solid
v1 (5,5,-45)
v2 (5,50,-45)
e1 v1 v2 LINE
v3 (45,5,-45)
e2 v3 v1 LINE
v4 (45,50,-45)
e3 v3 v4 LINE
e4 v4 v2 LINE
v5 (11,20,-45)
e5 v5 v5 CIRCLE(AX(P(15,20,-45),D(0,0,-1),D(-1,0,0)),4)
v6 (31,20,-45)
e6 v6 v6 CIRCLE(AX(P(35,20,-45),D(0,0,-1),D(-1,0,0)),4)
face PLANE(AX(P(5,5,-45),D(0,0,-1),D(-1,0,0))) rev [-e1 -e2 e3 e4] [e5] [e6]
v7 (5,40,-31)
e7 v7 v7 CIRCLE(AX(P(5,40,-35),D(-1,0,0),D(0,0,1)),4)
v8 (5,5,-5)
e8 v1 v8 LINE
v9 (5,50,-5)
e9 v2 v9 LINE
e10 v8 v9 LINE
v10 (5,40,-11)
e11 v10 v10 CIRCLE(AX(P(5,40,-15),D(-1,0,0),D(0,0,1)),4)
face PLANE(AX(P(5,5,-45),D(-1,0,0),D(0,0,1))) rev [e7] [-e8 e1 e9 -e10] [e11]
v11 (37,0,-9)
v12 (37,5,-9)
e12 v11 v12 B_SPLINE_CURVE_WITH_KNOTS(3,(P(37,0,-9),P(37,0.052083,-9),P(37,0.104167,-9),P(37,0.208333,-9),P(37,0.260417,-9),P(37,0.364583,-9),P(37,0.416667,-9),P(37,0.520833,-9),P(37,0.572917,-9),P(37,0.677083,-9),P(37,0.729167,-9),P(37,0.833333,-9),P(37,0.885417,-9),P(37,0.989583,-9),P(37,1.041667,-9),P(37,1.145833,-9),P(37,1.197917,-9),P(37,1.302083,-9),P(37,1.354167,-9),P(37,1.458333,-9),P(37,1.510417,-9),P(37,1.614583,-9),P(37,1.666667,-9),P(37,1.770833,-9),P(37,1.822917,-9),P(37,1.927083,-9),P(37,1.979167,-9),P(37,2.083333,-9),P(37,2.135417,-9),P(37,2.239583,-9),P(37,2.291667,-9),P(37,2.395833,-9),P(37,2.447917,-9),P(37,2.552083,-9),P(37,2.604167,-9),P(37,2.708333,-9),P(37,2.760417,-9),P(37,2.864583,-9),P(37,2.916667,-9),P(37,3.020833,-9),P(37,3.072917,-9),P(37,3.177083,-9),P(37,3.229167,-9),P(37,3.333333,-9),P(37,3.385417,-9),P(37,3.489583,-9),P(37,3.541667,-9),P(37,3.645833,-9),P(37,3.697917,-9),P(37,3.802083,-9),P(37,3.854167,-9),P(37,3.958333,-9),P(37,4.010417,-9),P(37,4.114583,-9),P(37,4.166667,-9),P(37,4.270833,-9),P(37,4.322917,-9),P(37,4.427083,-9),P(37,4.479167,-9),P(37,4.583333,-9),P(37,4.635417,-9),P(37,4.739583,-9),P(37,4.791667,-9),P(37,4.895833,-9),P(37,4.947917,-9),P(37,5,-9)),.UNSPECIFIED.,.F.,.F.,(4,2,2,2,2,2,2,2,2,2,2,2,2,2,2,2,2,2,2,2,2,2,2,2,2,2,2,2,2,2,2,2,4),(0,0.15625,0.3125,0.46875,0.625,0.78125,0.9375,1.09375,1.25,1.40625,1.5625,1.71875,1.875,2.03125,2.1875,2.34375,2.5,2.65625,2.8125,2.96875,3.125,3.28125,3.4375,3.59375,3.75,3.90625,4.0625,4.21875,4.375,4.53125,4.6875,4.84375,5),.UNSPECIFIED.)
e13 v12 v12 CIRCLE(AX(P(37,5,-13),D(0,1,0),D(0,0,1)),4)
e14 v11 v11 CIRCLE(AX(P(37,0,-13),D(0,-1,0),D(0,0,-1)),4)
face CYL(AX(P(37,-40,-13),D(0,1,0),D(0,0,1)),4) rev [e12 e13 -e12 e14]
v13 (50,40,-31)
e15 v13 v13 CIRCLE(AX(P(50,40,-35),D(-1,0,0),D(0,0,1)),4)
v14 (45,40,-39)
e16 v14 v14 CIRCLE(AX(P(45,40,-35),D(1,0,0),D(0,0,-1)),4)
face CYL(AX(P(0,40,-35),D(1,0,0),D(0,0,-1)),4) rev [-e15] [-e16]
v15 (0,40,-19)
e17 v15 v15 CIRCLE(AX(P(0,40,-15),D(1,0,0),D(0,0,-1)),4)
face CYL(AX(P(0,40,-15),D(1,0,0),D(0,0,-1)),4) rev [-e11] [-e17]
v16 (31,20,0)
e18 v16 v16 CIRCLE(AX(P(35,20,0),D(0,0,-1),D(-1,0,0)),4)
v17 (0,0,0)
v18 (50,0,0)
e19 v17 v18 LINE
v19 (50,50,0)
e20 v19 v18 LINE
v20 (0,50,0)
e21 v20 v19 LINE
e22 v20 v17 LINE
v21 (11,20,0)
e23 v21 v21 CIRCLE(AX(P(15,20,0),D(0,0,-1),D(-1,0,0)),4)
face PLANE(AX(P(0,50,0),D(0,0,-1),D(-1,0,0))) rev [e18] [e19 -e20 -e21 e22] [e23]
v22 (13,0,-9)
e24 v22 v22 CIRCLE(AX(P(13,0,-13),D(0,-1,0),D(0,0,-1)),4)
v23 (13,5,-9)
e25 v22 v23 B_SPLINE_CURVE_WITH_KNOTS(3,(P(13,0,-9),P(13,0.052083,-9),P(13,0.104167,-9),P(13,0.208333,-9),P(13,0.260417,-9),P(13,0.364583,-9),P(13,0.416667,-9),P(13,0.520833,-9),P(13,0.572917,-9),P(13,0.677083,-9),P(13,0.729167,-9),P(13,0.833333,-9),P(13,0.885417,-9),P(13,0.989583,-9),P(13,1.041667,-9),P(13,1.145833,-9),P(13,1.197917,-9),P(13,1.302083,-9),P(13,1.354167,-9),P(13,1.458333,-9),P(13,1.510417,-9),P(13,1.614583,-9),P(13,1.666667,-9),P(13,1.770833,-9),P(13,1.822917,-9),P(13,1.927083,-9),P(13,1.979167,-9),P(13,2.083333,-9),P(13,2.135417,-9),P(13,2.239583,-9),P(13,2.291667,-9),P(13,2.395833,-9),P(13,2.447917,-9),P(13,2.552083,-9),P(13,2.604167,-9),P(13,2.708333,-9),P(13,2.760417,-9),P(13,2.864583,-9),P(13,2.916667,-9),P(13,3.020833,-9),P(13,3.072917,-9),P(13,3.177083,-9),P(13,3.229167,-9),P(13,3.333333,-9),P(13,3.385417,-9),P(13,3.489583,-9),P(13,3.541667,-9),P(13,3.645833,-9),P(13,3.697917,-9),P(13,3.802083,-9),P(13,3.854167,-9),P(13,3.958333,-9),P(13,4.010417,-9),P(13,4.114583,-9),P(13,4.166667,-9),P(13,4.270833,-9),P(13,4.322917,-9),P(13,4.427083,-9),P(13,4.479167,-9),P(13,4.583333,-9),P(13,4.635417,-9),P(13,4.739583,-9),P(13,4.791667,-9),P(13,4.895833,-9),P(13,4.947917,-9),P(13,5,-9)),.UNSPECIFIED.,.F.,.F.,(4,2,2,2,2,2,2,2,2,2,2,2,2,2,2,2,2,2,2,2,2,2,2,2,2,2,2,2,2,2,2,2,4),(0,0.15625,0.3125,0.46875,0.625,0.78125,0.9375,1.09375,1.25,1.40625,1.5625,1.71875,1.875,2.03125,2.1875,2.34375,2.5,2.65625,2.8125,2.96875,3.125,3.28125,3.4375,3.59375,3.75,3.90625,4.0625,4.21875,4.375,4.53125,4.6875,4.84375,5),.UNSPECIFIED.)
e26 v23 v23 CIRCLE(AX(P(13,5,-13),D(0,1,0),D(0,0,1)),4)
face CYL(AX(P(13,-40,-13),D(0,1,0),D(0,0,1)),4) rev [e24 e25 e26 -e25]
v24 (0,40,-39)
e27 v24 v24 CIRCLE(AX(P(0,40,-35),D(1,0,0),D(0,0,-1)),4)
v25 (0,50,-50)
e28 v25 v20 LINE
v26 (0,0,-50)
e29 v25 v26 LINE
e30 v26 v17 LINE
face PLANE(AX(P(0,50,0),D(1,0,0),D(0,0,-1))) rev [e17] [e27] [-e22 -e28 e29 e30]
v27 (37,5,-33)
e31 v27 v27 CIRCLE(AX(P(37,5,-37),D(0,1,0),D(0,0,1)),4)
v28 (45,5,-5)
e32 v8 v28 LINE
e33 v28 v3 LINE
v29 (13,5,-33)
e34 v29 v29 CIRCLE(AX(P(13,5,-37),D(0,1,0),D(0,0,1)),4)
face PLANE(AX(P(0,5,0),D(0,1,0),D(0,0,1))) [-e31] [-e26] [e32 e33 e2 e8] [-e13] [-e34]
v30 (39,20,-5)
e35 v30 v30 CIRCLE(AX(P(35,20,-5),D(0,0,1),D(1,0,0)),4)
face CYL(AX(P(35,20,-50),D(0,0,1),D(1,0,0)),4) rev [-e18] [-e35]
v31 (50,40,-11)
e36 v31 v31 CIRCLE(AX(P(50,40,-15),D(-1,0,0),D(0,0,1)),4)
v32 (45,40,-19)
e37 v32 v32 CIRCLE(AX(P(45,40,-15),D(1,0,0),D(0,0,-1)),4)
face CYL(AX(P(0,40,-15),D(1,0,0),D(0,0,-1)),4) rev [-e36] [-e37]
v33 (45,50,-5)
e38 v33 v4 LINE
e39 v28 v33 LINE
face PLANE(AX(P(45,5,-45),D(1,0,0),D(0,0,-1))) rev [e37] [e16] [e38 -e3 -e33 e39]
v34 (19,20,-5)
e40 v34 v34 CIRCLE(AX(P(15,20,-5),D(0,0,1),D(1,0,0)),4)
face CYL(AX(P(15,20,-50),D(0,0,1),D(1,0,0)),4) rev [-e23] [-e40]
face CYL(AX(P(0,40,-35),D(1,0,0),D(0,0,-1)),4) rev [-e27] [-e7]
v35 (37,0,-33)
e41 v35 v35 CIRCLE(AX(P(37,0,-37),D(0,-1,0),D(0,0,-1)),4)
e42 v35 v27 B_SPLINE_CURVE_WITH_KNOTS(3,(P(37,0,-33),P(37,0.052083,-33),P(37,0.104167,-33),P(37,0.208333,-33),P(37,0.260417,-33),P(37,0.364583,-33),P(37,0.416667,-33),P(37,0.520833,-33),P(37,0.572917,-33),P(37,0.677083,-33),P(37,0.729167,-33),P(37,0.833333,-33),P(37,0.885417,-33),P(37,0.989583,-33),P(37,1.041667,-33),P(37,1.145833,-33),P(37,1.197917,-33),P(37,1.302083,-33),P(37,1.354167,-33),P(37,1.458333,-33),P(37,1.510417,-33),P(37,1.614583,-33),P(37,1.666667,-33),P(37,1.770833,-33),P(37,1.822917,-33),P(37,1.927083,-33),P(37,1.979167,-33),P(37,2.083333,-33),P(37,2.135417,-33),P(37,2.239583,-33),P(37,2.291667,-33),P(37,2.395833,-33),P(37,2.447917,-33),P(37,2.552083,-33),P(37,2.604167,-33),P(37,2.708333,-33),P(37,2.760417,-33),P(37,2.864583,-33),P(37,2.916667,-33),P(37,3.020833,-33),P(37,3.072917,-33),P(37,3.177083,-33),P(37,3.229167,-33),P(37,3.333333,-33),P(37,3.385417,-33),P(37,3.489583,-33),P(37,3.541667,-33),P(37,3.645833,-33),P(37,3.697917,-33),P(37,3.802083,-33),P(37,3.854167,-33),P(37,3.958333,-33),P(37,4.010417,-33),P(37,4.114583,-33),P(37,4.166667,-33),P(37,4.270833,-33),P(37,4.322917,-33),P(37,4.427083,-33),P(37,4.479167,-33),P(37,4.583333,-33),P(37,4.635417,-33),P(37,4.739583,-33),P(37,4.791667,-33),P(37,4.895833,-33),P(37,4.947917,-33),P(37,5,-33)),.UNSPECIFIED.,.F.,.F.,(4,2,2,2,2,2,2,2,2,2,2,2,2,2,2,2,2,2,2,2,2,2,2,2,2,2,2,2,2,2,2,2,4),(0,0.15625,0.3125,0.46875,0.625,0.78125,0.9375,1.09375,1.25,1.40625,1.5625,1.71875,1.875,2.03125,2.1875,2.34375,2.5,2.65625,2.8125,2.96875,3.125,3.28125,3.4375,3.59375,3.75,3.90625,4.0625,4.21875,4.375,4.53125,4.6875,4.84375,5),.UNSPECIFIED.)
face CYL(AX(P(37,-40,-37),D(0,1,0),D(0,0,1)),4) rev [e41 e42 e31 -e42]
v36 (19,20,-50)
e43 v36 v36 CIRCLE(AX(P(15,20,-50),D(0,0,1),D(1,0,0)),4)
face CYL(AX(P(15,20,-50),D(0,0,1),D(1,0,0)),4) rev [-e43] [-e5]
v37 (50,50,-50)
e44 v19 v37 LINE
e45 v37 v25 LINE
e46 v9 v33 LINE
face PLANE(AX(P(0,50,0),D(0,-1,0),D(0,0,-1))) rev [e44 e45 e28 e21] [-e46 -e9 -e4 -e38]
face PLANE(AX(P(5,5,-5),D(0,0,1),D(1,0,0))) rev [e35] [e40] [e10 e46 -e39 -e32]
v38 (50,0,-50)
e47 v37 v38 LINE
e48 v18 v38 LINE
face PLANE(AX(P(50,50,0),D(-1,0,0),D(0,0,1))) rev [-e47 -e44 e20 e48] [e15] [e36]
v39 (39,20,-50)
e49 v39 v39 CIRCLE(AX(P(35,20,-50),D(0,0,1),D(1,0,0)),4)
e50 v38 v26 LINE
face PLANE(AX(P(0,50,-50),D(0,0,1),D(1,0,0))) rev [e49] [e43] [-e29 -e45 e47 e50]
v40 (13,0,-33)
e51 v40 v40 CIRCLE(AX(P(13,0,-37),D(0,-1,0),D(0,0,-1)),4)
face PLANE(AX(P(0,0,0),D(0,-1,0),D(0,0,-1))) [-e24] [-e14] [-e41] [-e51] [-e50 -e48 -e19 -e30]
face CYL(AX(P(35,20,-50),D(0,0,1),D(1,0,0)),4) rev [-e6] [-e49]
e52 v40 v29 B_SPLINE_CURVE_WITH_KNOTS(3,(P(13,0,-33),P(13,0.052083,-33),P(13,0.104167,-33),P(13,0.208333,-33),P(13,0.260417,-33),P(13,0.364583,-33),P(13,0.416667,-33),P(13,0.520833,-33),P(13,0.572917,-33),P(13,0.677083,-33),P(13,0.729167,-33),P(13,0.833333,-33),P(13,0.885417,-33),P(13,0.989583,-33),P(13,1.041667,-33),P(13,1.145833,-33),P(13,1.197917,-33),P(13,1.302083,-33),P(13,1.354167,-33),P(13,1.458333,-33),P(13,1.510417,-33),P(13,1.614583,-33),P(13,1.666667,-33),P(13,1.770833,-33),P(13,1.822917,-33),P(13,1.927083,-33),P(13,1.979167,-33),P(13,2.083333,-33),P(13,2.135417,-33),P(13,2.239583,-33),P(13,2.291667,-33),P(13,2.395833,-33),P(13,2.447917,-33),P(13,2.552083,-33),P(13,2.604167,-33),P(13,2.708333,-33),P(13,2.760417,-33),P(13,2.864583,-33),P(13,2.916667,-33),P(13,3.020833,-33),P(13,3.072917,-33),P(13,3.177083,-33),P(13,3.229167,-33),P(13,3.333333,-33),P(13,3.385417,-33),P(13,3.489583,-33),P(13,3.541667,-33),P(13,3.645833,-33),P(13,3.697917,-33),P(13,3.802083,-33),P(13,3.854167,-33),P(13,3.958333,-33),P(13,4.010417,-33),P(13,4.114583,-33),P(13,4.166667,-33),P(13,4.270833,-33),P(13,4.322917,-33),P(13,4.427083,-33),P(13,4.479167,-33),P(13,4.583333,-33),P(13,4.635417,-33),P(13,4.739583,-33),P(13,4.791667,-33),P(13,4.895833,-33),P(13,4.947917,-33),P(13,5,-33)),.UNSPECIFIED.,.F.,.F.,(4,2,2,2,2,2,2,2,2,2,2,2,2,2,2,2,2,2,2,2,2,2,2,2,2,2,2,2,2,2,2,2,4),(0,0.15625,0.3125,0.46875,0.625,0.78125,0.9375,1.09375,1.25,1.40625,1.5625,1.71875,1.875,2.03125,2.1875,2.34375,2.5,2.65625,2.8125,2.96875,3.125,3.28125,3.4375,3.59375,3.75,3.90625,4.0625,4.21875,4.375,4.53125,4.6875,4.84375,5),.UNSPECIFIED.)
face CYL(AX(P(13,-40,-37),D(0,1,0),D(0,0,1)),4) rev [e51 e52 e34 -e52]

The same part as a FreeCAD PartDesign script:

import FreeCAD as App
import Part
import Sketcher
from FreeCAD import Vector
Q = App.Units.Quantity

doc = App.newDocument("Part")
body = doc.addObject("PartDesign::Body", "Body")

# Sketch on XZ plane
sketch1 = doc.addObject("Sketcher::SketchObject", "Sketch")
body.addObject(sketch1)
sketch1.AttachmentSupport = (doc.XZ_Plane, [""])
sketch1.MapMode = "FlatFace"
sketch1.addGeometry([
    Part.LineSegment(Vector(0, -50, 0), Vector(0, 0, 0)),
    Part.LineSegment(Vector(0, 0, 0), Vector(50, 0, 0)),
    Part.LineSegment(Vector(50, 0, 0), Vector(50, -50, 0)),
    Part.LineSegment(Vector(50, -50, 0), Vector(0, -50, 0)),
], False)
sketch1.addConstraint([
    Sketcher.Constraint("Coincident", 0, 2, 1, 1),
    Sketcher.Constraint("Coincident", 1, 2, 2, 1),
    Sketcher.Constraint("Coincident", 2, 2, 3, 1),
    Sketcher.Constraint("Coincident", 3, 2, 0, 1),
    Sketcher.Constraint("Vertical", 0),
    Sketcher.Constraint("Horizontal", 1),
    Sketcher.Constraint("Vertical", 2),
    Sketcher.Constraint("Horizontal", 3),
    Sketcher.Constraint("Coincident", 0, 2, -1, 1),
    Sketcher.Constraint("Equal", 3, 0),
    Sketcher.Constraint("DistanceX", 1, 1, 1, 2, Q("50 mm")),
])
pad1 = doc.addObject("PartDesign::Pad", "Pad")
body.addObject(pad1)
pad1.Profile = sketch1
pad1.Length = 50
pad1.Reversed = True

# Sketch on XZ plane
sketch2 = doc.addObject("Sketcher::SketchObject", "Sketch001")
body.addObject(sketch2)
sketch2.AttachmentSupport = (doc.XZ_Plane, [""])
sketch2.MapMode = "FlatFace"
sketch2.AttachmentOffset = App.Placement(Vector(0, 0, -50), App.Rotation())
sketch2.addGeometry([
    Part.LineSegment(Vector(5, -45, 0), Vector(5, -5, 0)),
    Part.LineSegment(Vector(5, -5, 0), Vector(45, -5, 0)),
    Part.LineSegment(Vector(45, -5, 0), Vector(45, -45, 0)),
    Part.LineSegment(Vector(45, -45, 0), Vector(5, -45, 0)),
], False)
sketch2.addConstraint([
    Sketcher.Constraint("Coincident", 0, 2, 1, 1),
    Sketcher.Constraint("Coincident", 1, 2, 2, 1),
    Sketcher.Constraint("Coincident", 2, 2, 3, 1),
    Sketcher.Constraint("Coincident", 3, 2, 0, 1),
    Sketcher.Constraint("Vertical", 0),
    Sketcher.Constraint("Horizontal", 1),
    Sketcher.Constraint("Vertical", 2),
    Sketcher.Constraint("Horizontal", 3),
    Sketcher.Constraint("Equal", 3, 0),
    Sketcher.Constraint("DistanceX", 1, 1, 1, 2, Q("40 mm")),
    Sketcher.Constraint("DistanceX", -1, 1, 0, 2, Q("5 mm")),
    Sketcher.Constraint("DistanceY", 0, 2, -1, 1, Q("5 mm")),
])
pocket1 = doc.addObject("PartDesign::Pocket", "Pocket")
body.addObject(pocket1)
pocket1.Profile = sketch2
pocket1.Length = 45
pocket1.Reversed = True

# Sketch on XZ plane
sketch3 = doc.addObject("Sketcher::SketchObject", "Sketch002")
body.addObject(sketch3)
sketch3.AttachmentSupport = (doc.XZ_Plane, [""])
sketch3.MapMode = "FlatFace"
sketch3.AttachmentOffset = App.Placement(Vector(0, 0, -5), App.Rotation())
sketch3.addGeometry([
    Part.Circle(Vector(13, -37, 0), Vector(0, 0, 1), 4),
    Part.Circle(Vector(37, -37, 0), Vector(0, 0, 1), 4),
    Part.Circle(Vector(13, -13, 0), Vector(0, 0, 1), 4),
    Part.Circle(Vector(37, -13, 0), Vector(0, 0, 1), 4),
], False)
sketch3.addConstraint([
    Sketcher.Constraint("Equal", 0, 1),
    Sketcher.Constraint("Equal", 1, 2),
    Sketcher.Constraint("Equal", 2, 3),
    Sketcher.Constraint("Horizontal", 0, 3, 1, 3),
    Sketcher.Constraint("Horizontal", 2, 3, 3, 3),
    Sketcher.Constraint("Vertical", 0, 3, 2, 3),
    Sketcher.Constraint("Vertical", 1, 3, 3, 3),
    Sketcher.Constraint("Diameter", 0, Q("8 mm")),
    Sketcher.Constraint("DistanceX", -1, 1, 0, 3, Q("13 mm")),
    Sketcher.Constraint("DistanceY", 0, 3, -1, 1, Q("37 mm")),
    Sketcher.Constraint("DistanceX", -1, 1, 1, 3, Q("37 mm")),
    Sketcher.Constraint("DistanceY", 2, 3, -1, 1, Q("13 mm")),
])
pocket2 = doc.addObject("PartDesign::Pocket", "Pocket001")
body.addObject(pocket2)
pocket2.Profile = sketch3
pocket2.Length = 45
pocket2.Reversed = True

# Sketch on XY plane
sketch4 = doc.addObject("Sketcher::SketchObject", "Sketch003")
body.addObject(sketch4)
sketch4.AttachmentSupport = (doc.XY_Plane, [""])
sketch4.MapMode = "FlatFace"
sketch4.addGeometry([
    Part.Circle(Vector(15, 20, 0), Vector(0, 0, 1), 4),
    Part.Circle(Vector(35, 20, 0), Vector(0, 0, 1), 4),
], False)
sketch4.addConstraint([
    Sketcher.Constraint("Equal", 0, 1),
    Sketcher.Constraint("Horizontal", 0, 3, 1, 3),
    Sketcher.Constraint("Diameter", 0, Q("8 mm")),
    Sketcher.Constraint("DistanceX", -1, 1, 0, 3, Q("15 mm")),
    Sketcher.Constraint("DistanceY", -1, 1, 0, 3, Q("20 mm")),
    Sketcher.Constraint("DistanceX", -1, 1, 1, 3, Q("35 mm")),
])
pocket3 = doc.addObject("PartDesign::Pocket", "Pocket002")
body.addObject(pocket3)
pocket3.Profile = sketch4
pocket3.Type = "ThroughAll"
pocket3.Midplane = True

# Sketch on YZ plane
sketch5 = doc.addObject("Sketcher::SketchObject", "Sketch004")
body.addObject(sketch5)
sketch5.AttachmentSupport = (doc.YZ_Plane, [""])
sketch5.MapMode = "FlatFace"
sketch5.AttachmentOffset = App.Placement(Vector(0, 0, 50), App.Rotation())
sketch5.addGeometry([
    Part.Circle(Vector(40, -15, 0), Vector(0, 0, 1), 4),
    Part.Circle(Vector(40, -35, 0), Vector(0, 0, 1), 4),
], False)
sketch5.addConstraint([
    Sketcher.Constraint("Equal", 0, 1),
    Sketcher.Constraint("Vertical", 0, 3, 1, 3),
    Sketcher.Constraint("Diameter", 0, Q("8 mm")),
    Sketcher.Constraint("DistanceX", -1, 1, 0, 3, Q("40 mm")),
    Sketcher.Constraint("DistanceY", 0, 3, -1, 1, Q("15 mm")),
    Sketcher.Constraint("DistanceY", 1, 3, -1, 1, Q("35 mm")),
])
pocket4 = doc.addObject("PartDesign::Pocket", "Pocket003")
body.addObject(pocket4)
pocket4.Profile = sketch5
pocket4.Type = "ThroughAll"
pocket4.Midplane = True

doc.recompute()
